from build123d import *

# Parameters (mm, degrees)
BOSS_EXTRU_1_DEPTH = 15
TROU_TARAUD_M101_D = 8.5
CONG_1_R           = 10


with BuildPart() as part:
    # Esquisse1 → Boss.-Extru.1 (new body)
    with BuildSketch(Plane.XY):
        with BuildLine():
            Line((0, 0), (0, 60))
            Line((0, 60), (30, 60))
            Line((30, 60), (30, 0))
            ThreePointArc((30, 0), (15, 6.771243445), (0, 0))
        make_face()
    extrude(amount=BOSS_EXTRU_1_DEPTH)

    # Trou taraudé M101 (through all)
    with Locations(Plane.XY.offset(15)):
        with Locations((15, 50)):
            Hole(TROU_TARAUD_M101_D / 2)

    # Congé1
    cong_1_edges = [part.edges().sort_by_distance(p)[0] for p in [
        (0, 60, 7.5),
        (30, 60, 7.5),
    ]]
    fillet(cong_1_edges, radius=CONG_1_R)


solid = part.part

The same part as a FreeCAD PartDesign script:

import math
import FreeCAD as App
import Part
import Sketcher
from FreeCAD import Vector


def edges_at(feature, points):
    """Names of the edges that pass closest to the given points."""
    edges = feature.Shape.Edges
    near = lambda p: min(range(len(edges)), key=lambda i: edges[i].distToShape(Part.Vertex(*p))[0])
    return sorted({f"Edge{near(p) + 1}" for p in points})

doc = App.newDocument("Part")
body = doc.addObject("PartDesign::Body", "Body")

# Sketch on XY plane
sketch1 = body.newObject("Sketcher::SketchObject", "Sketch")
sketch1.AttachmentSupport = (doc.getObject("XY_Plane"), [""])
sketch1.MapMode = "FlatFace"
sketch1.addGeometry([
    Part.LineSegment(Vector(0, 60, 0), Vector(0, 0, 0)),
    Part.ArcOfCircle(Part.Circle(Vector(15, -13, 0), Vector(0, 0, 1), 20), math.radians(41), math.radians(139)),
    Part.LineSegment(Vector(30, 0, 0), Vector(30, 60, 0)),
    Part.LineSegment(Vector(30, 60, 0), Vector(0, 60, 0)),
], False)
sketch1.addConstraint([
    Sketcher.Constraint("Coincident", 0, 2, 1, 2),
    Sketcher.Constraint("Coincident", 1, 1, 2, 1),
    Sketcher.Constraint("Coincident", 2, 2, 3, 1),
    Sketcher.Constraint("Coincident", 3, 2, 0, 1),
    Sketcher.Constraint("Vertical", 0),
    Sketcher.Constraint("Vertical", 2),
    Sketcher.Constraint("Horizontal", 3),
    Sketcher.Constraint("Coincident", 0, 2, -1, 1),
    Sketcher.Constraint("PointOnObject", 1, 1, -1),
    Sketcher.Constraint("Radius", 1, 20.0),
    Sketcher.Constraint("DistanceX", 3, 2, 3, 1, 30.0),
    Sketcher.Constraint("DistanceY", 0, 2, 0, 1, 60.0),
])
pad1 = body.newObject("PartDesign::Pad", "Pad")
pad1.Profile = sketch1
pad1.Length = 15

# Sketch on XY plane
sketch2 = body.newObject("Sketcher::SketchObject", "Sketch001")
sketch2.AttachmentSupport = (doc.getObject("XY_Plane"), [""])
sketch2.MapMode = "FlatFace"
sketch2.AttachmentOffset = App.Placement(Vector(0, 0, 15), App.Rotation())
sketch2.addGeometry(Part.Circle(Vector(15, 50, 0), Vector(0, 0, 1), 4.2), False)
sketch2.addConstraint([
    Sketcher.Constraint("Diameter", 0, 8.5),
    Sketcher.Constraint("DistanceX", -1, 1, 0, 3, 15.0),
    Sketcher.Constraint("DistanceY", -1, 1, 0, 3, 50.0),
])
doc.recompute()
hole = body.newObject("PartDesign::Hole", "Hole")
hole.Profile = sketch2
hole.ThreadType = "None"
hole.Diameter = 8.5
hole.DepthType = "ThroughAll"
doc.recompute()

fillet = body.newObject("PartDesign::Fillet", "Fillet")
fillet.Base = (hole, edges_at(hole, [(0, 60, 7.5), (30, 60, 7.5)]))
fillet.Radius = 10

doc.recompute()
